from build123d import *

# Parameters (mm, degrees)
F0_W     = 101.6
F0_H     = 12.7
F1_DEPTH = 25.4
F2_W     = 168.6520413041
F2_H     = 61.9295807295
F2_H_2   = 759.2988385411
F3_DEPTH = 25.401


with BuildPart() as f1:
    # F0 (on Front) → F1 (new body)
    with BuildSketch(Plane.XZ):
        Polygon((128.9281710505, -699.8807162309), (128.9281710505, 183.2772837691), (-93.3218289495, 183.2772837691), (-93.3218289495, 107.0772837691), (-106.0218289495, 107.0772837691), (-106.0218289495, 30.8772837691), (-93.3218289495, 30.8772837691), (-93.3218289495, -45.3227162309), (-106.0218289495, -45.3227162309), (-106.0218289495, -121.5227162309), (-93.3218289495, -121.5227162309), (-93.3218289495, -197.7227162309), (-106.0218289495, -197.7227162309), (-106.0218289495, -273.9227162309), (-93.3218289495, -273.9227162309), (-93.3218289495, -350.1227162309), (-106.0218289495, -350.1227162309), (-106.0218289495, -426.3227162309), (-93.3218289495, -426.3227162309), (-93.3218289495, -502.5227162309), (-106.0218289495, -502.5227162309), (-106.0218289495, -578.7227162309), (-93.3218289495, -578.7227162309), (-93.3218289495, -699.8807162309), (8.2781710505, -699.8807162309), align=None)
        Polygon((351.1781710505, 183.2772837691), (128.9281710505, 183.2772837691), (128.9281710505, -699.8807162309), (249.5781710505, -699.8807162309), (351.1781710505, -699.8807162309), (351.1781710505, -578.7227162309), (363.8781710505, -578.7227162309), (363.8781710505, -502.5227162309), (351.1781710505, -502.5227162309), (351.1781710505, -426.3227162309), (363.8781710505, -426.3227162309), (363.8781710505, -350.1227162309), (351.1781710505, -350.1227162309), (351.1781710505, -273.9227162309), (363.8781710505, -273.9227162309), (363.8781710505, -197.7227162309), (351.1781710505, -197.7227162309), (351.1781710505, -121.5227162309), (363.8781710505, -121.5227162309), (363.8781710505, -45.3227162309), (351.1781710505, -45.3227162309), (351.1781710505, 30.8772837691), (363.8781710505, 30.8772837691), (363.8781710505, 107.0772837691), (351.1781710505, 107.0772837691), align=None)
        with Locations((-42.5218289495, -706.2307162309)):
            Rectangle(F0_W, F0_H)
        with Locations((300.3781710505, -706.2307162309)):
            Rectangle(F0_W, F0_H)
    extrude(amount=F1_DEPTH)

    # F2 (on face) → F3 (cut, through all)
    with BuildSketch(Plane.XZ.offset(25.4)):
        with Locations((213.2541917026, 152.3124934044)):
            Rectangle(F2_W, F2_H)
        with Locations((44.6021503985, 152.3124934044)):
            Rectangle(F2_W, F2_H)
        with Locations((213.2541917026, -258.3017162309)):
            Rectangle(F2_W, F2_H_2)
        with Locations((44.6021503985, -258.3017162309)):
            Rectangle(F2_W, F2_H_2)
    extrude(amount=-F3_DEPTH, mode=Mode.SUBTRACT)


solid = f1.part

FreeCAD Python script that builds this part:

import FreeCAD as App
import Part
import Sketcher
Q = App.Units.Quantity


def add_polygon(sketch, points):
    """Adds a closed chain of lines whose ends are joined by coincident constraints."""
    first, n = sketch.GeometryCount, len(points)
    for a, b in zip(points, points[1:] + points[:1]):
        sketch.addGeometry(Part.LineSegment(App.Vector(*a, 0), App.Vector(*b, 0)), False)
    for i in range(n):
        sketch.addConstraint(Sketcher.Constraint("Coincident", first + i, 2, first + (i + 1) % n, 1))

doc = App.newDocument("Part")
params = doc.addObject("Spreadsheet::Sheet", "Params")
for row, (alias, value) in enumerate([
    ("sketch1_width", "4 in"),
    ("sketch1_height", "3 in"),
    ("sketch1_width2", "0.5 in"),
    ("sketch1_width3", "9.5 in"),
    ("sketch1_height2", "5.27 in"),
    ("pad1_length", "1 in"),
], start=1):
    params.set(f"A{row}", alias)
    params.set(f"B{row}", "=" + value)
    params.setAlias(f"B{row}", alias)

body = doc.addObject("PartDesign::Body", "Body")

sketch1 = doc.addObject("Sketcher::SketchObject", "Sketch")
body.addObject(sketch1)
sketch1.AttachmentSupport = (doc.XZ_Plane, [""])
sketch1.MapMode = "FlatFace"
add_polygon(sketch1, [(-93, 183), (-93, 107), (-106, 107), (-106, 31), (-93, 31), (-93, -45), (-106, -45), (-106, -122), (-93, -122), (-93, -198), (-106, -198), (-106, -274), (-93, -274), (-93, -350), (-106, -350), (-106, -426), (-93, -426), (-93, -503), (-106, -503), (-106, -579), (-93, -579), (-93, -713), (8, -713), (8, -700), (250, -700), (250, -713), (351, -713), (351, -579), (364, -579), (364, -503), (351, -503), (351, -426), (364, -426), (364, -350), (351, -350), (351, -274), (364, -274), (364, -198), (351, -198), (351, -122), (364, -122), (364, -45), (351, -45), (351, 31), (364, 31), (364, 107), (351, 107), (351, 183)])
sketch1.addConstraint(Sketcher.Constraint("Vertical", 0))
sketch1.addConstraint(Sketcher.Constraint("Horizontal", 1))
sketch1.addConstraint(Sketcher.Constraint("Vertical", 2))
sketch1.addConstraint(Sketcher.Constraint("Horizontal", 3))
sketch1.addConstraint(Sketcher.Constraint("Vertical", 4))
sketch1.addConstraint(Sketcher.Constraint("Horizontal", 5))
sketch1.addConstraint(Sketcher.Constraint("Vertical", 6))
sketch1.addConstraint(Sketcher.Constraint("Horizontal", 7))
sketch1.addConstraint(Sketcher.Constraint("Vertical", 8))
sketch1.addConstraint(Sketcher.Constraint("Horizontal", 9))
sketch1.addConstraint(Sketcher.Constraint("Vertical", 10))
sketch1.addConstraint(Sketcher.Constraint("Horizontal", 11))
sketch1.addConstraint(Sketcher.Constraint("Vertical", 12))
sketch1.addConstraint(Sketcher.Constraint("Horizontal", 13))
sketch1.addConstraint(Sketcher.Constraint("Vertical", 14))
sketch1.addConstraint(Sketcher.Constraint("Horizontal", 15))
sketch1.addConstraint(Sketcher.Constraint("Vertical", 16))
sketch1.addConstraint(Sketcher.Constraint("Horizontal", 17))
sketch1.addConstraint(Sketcher.Constraint("Vertical", 18))
sketch1.addConstraint(Sketcher.Constraint("Horizontal", 19))
sketch1.addConstraint(Sketcher.Constraint("Vertical", 20))
sketch1.addConstraint(Sketcher.Constraint("Horizontal", 21))
sketch1.addConstraint(Sketcher.Constraint("Vertical", 22))
sketch1.addConstraint(Sketcher.Constraint("Horizontal", 23))
sketch1.addConstraint(Sketcher.Constraint("Vertical", 24))
sketch1.addConstraint(Sketcher.Constraint("Horizontal", 25))
sketch1.addConstraint(Sketcher.Constraint("Vertical", 26))
sketch1.addConstraint(Sketcher.Constraint("Horizontal", 27))
sketch1.addConstraint(Sketcher.Constraint("Vertical", 28))
sketch1.addConstraint(Sketcher.Constraint("Horizontal", 29))
sketch1.addConstraint(Sketcher.Constraint("Vertical", 30))
sketch1.addConstraint(Sketcher.Constraint("Horizontal", 31))
sketch1.addConstraint(Sketcher.Constraint("Vertical", 32))
sketch1.addConstraint(Sketcher.Constraint("Horizontal", 33))
sketch1.addConstraint(Sketcher.Constraint("Vertical", 34))
sketch1.addConstraint(Sketcher.Constraint("Horizontal", 35))
sketch1.addConstraint(Sketcher.Constraint("Vertical", 36))
sketch1.addConstraint(Sketcher.Constraint("Horizontal", 37))
sketch1.addConstraint(Sketcher.Constraint("Vertical", 38))
sketch1.addConstraint(Sketcher.Constraint("Horizontal", 39))
sketch1.addConstraint(Sketcher.Constraint("Vertical", 40))
sketch1.addConstraint(Sketcher.Constraint("Horizontal", 41))
sketch1.addConstraint(Sketcher.Constraint("Vertical", 42))
sketch1.addConstraint(Sketcher.Constraint("Horizontal", 43))
sketch1.addConstraint(Sketcher.Constraint("Vertical", 44))
sketch1.addConstraint(Sketcher.Constraint("Horizontal", 45))
sketch1.addConstraint(Sketcher.Constraint("Vertical", 46))
sketch1.addConstraint(Sketcher.Constraint("Horizontal", 47))
sketch1.addConstraint(Sketcher.Constraint("Horizontal", 21, 2, 24, 2))
sketch1.addConstraint(Sketcher.Constraint("Horizontal", 19, 2, 26, 2))
sketch1.addConstraint(Sketcher.Constraint("Horizontal", 17, 2, 28, 2))
sketch1.addConstraint(Sketcher.Constraint("Horizontal", 15, 2, 30, 2))
sketch1.addConstraint(Sketcher.Constraint("Horizontal", 13, 2, 32, 2))
sketch1.addConstraint(Sketcher.Constraint("Horizontal", 11, 2, 34, 2))
sketch1.addConstraint(Sketcher.Constraint("Horizontal", 9, 2, 36, 2))
sketch1.addConstraint(Sketcher.Constraint("Horizontal", 7, 2, 38, 2))
sketch1.addConstraint(Sketcher.Constraint("Horizontal", 5, 2, 40, 2))
sketch1.addConstraint(Sketcher.Constraint("Horizontal", 3, 2, 42, 2))
sketch1.addConstraint(Sketcher.Constraint("Horizontal", 1, 2, 44, 2))
sketch1.addConstraint(Sketcher.Constraint("Vertical", 0, 2, 3, 2))
sketch1.addConstraint(Sketcher.Constraint("Vertical", 2, 2, 5, 2))
sketch1.addConstraint(Sketcher.Constraint("Vertical", 4, 2, 7, 2))
sketch1.addConstraint(Sketcher.Constraint("Vertical", 6, 2, 9, 2))
sketch1.addConstraint(Sketcher.Constraint("Vertical", 8, 2, 11, 2))
sketch1.addConstraint(Sketcher.Constraint("Vertical", 10, 2, 13, 2))
sketch1.addConstraint(Sketcher.Constraint("Vertical", 12, 2, 15, 2))
sketch1.addConstraint(Sketcher.Constraint("Vertical", 14, 2, 17, 2))
sketch1.addConstraint(Sketcher.Constraint("Vertical", 16, 2, 19, 2))
sketch1.addConstraint(Sketcher.Constraint("Vertical", 26, 2, 29, 2))
sketch1.addConstraint(Sketcher.Constraint("Vertical", 28, 2, 31, 2))
sketch1.addConstraint(Sketcher.Constraint("Vertical", 30, 2, 33, 2))
sketch1.addConstraint(Sketcher.Constraint("Vertical", 32, 2, 35, 2))
sketch1.addConstraint(Sketcher.Constraint("Vertical", 34, 2, 37, 2))
sketch1.addConstraint(Sketcher.Constraint("Vertical", 36, 2, 39, 2))
sketch1.addConstraint(Sketcher.Constraint("Vertical", 38, 2, 41, 2))
sketch1.addConstraint(Sketcher.Constraint("Vertical", 40, 2, 43, 2))
sketch1.addConstraint(Sketcher.Constraint("Vertical", 42, 2, 45, 2))
sketch1.addConstraint(Sketcher.Constraint("Equal", 21, 25))
sketch1.addConstraint(Sketcher.Constraint("Equal", 19, 27))
sketch1.addConstraint(Sketcher.Constraint("Equal", 0, 2))
sketch1.addConstraint(Sketcher.Constraint("Equal", 2, 4))
sketch1.addConstraint(Sketcher.Constraint("Equal", 4, 6))
sketch1.addConstraint(Sketcher.Constraint("Equal", 6, 8))
sketch1.addConstraint(Sketcher.Constraint("Equal", 8, 10))
sketch1.addConstraint(Sketcher.Constraint("Equal", 10, 12))
sketch1.addConstraint(Sketcher.Constraint("Equal", 12, 14))
sketch1.addConstraint(Sketcher.Constraint("Equal", 14, 16))
sketch1.addConstraint(Sketcher.Constraint("Equal", 16, 18))
sketch1.addConstraint(Sketcher.Constraint("Equal", 45, 22))
sketch1.addConstraint(Sketcher.Constraint("DistanceX", 21, 1, 21, 2, Q("4 in")))
sketch1.addConstraint(Sketcher.Constraint("DistanceY", 0, 2, 0, 1, Q("3 in")))
sketch1.addConstraint(Sketcher.Constraint("DistanceX", 1, 2, 1, 1, Q("0.5 in")))
sketch1.addConstraint(Sketcher.Constraint("DistanceX", 23, 1, 23, 2, Q("9.5 in")))
sketch1.addConstraint(Sketcher.Constraint("DistanceY", 20, 2, 20, 1, Q("5.27 in")))
sketch1.addConstraint(Sketcher.Constraint("DistanceX", 0, 2, -1, 1, Q("93.321829 mm")))
sketch1.addConstraint(Sketcher.Constraint("DistanceY", -1, 1, 0, 2, Q("107.077284 mm")))
sketch1.setExpression("Constraints[137]", "Params.sketch1_width")
sketch1.setExpression("Constraints[138]", "Params.sketch1_height")
sketch1.setExpression("Constraints[139]", "Params.sketch1_width2")
sketch1.setExpression("Constraints[140]", "Params.sketch1_width3")
sketch1.setExpression("Constraints[141]", "Params.sketch1_height2")
pad1 = doc.addObject("PartDesign::Pad", "Pad")
body.addObject(pad1)
pad1.Profile = sketch1
pad1.setExpression("Length", "Params.pad1_length")

sketch2 = doc.addObject("Sketcher::SketchObject", "Sketch001")
body.addObject(sketch2)
sketch2.AttachmentSupport = (doc.XZ_Plane, [""])
sketch2.MapMode = "FlatFace"
sketch2.AttachmentOffset = App.Placement(App.Vector(0, 0, 1 * 25.4), App.Rotation())
add_polygon(sketch2, [(298, 183), (-40, 183), (-40, -638), (298, -638)])
sketch2.addConstraint(Sketcher.Constraint("Horizontal", 0))
sketch2.addConstraint(Sketcher.Constraint("Vertical", 1))
sketch2.addConstraint(Sketcher.Constraint("Horizontal", 2))
sketch2.addConstraint(Sketcher.Constraint("Vertical", 3))
sketch2.addConstraint(Sketcher.Constraint("DistanceY", 1, 2, 1, 1, Q("821.228419 mm")))
sketch2.addConstraint(Sketcher.Constraint("DistanceX", 0, 2, 0, 1, Q("337.304083 mm")))
sketch2.addConstraint(Sketcher.Constraint("DistanceX", 0, 2, -1, 1, Q("39.72387 mm")))
sketch2.addConstraint(Sketcher.Constraint("DistanceY", -1, 1, 0, 2, Q("183.277284 mm")))
pocket1 = doc.addObject("PartDesign::Pocket", "Pocket")
body.addObject(pocket1)
pocket1.Profile = sketch2
pocket1.Type = "ThroughAll"

doc.recompute()
